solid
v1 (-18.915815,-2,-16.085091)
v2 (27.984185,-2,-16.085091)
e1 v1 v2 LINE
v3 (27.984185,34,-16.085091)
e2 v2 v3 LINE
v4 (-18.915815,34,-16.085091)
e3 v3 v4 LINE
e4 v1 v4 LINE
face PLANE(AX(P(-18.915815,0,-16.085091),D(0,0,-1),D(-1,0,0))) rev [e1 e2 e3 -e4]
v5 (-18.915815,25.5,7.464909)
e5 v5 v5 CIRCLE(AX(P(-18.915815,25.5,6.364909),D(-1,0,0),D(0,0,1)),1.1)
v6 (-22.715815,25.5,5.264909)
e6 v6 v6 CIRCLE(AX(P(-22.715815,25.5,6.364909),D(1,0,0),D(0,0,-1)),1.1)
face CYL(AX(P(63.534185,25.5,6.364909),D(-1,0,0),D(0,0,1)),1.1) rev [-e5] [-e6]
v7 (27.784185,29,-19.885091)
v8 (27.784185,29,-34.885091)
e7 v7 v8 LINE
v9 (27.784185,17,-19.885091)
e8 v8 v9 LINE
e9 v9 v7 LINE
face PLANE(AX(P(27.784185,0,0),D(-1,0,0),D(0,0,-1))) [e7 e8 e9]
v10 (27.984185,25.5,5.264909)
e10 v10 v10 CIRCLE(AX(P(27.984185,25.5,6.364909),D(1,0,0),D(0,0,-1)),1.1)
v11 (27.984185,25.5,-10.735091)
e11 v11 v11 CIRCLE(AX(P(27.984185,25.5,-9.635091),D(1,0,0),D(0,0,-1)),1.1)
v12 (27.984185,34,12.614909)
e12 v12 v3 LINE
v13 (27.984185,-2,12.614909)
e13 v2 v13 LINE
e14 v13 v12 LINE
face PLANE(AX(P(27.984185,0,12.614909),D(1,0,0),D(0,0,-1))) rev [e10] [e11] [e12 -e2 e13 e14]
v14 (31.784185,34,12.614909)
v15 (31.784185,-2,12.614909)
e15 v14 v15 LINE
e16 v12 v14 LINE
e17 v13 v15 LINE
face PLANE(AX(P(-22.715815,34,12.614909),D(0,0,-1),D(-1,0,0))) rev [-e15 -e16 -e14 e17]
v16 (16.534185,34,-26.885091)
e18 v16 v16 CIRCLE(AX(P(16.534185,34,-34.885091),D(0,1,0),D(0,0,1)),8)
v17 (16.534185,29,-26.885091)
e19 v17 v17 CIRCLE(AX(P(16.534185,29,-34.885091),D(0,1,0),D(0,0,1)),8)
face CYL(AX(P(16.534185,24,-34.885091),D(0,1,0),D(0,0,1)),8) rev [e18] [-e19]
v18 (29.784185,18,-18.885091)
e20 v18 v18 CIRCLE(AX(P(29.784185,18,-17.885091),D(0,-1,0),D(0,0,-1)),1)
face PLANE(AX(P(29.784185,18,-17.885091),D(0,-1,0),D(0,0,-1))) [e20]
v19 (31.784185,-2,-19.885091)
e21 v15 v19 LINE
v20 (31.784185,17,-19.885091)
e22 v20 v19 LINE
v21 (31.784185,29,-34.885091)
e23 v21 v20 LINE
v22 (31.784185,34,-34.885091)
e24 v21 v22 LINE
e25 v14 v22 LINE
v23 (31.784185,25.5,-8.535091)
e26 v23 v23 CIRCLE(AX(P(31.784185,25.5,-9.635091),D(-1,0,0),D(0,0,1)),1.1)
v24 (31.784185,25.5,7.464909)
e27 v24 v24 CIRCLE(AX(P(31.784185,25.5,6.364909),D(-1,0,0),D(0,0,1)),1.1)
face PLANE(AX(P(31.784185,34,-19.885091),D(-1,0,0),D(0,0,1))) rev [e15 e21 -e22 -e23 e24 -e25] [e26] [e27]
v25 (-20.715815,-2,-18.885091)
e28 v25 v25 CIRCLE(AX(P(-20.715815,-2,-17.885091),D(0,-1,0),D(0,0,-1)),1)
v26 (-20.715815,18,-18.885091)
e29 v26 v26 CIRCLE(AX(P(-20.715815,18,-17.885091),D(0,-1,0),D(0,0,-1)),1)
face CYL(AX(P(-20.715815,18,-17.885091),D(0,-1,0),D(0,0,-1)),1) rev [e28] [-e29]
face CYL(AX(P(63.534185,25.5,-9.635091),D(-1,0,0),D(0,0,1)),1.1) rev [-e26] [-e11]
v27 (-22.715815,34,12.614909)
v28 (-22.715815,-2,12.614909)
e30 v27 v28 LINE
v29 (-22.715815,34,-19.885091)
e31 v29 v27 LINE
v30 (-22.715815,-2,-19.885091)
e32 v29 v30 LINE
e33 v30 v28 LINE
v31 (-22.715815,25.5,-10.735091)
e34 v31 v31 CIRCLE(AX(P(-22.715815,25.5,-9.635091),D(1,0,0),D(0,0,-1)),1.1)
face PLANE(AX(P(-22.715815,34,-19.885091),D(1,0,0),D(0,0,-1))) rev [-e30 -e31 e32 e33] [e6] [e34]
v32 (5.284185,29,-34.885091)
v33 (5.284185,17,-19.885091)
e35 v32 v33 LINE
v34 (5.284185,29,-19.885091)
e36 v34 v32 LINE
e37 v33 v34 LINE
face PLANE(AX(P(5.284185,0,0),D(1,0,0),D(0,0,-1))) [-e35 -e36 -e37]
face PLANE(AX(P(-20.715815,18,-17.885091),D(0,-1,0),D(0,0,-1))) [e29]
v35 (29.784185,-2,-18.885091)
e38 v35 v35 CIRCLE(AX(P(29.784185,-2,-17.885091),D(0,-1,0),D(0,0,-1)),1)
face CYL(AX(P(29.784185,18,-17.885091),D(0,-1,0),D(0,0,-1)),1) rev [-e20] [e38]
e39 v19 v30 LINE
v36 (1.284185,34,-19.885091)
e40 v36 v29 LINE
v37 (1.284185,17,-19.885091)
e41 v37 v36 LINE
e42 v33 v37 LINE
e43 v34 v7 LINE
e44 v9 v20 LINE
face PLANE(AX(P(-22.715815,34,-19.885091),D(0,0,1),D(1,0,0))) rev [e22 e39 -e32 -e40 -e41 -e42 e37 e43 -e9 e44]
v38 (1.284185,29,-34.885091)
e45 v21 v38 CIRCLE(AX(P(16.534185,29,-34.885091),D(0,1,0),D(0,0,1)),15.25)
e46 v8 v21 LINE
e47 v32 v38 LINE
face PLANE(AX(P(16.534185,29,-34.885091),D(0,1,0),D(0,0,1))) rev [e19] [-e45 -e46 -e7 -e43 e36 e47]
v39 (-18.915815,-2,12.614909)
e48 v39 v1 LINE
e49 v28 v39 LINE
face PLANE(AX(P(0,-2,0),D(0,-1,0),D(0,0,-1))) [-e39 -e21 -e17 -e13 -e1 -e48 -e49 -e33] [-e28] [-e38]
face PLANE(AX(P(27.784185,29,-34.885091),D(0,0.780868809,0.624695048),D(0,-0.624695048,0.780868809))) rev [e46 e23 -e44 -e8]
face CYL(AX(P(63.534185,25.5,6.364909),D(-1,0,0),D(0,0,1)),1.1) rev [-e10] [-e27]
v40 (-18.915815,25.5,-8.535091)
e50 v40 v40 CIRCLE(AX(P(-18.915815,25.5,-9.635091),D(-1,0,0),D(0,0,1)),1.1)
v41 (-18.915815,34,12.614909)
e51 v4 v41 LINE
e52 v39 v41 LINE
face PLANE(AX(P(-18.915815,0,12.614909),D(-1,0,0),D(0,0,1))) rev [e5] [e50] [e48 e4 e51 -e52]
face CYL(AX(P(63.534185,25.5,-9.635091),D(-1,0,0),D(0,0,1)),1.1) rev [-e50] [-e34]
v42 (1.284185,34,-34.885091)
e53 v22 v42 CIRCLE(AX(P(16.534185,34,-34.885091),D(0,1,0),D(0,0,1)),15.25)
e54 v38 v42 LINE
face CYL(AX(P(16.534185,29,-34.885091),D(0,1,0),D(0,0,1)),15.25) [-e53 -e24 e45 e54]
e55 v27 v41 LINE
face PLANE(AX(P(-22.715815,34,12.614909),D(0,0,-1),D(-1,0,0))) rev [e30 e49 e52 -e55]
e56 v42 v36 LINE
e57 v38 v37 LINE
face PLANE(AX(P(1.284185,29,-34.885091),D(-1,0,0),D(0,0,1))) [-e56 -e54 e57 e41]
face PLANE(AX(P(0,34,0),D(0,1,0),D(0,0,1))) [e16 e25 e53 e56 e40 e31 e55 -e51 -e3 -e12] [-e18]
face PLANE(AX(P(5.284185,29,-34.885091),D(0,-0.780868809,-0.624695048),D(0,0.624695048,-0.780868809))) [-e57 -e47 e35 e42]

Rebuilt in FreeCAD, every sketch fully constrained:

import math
import FreeCAD as App
import Part
import Sketcher
from FreeCAD import Vector


def add_polygon(sketch, points):
    """Adds a closed chain of lines whose ends are joined by coincident constraints."""
    first, n = sketch.GeometryCount, len(points)
    for a, b in zip(points, points[1:] + points[:1]):
        sketch.addGeometry(Part.LineSegment(App.Vector(*a, 0), App.Vector(*b, 0)), False)
    for i in range(n):
        sketch.addConstraint(Sketcher.Constraint("Coincident", first + i, 2, first + (i + 1) % n, 1))

doc = App.newDocument("Part")
body = doc.addObject("PartDesign::Body", "Body")

sketch1 = doc.addObject("Sketcher::SketchObject", "Sketch")
body.addObject(sketch1)
sketch1.AttachmentSupport = (doc.XZ_Plane, [""])
sketch1.MapMode = "FlatFace"
add_polygon(sketch1, [(-23, -20), (-23, 13), (32, 13), (32, -20)])
sketch1.addConstraint(Sketcher.Constraint("Vertical", 0))
sketch1.addConstraint(Sketcher.Constraint("Horizontal", 1))
sketch1.addConstraint(Sketcher.Constraint("Vertical", 2))
sketch1.addConstraint(Sketcher.Constraint("Horizontal", 3))
sketch1.addConstraint(Sketcher.Constraint("DistanceX", 1, 1, 1, 2, 54.5))
sketch1.addConstraint(Sketcher.Constraint("DistanceY", 0, 1, 0, 2, 32.5))
sketch1.addConstraint(Sketcher.Constraint("DistanceY", -1, 1, 0, 2, 12.614909))
sketch1.addConstraint(Sketcher.Constraint("DistanceX", 0, 2, -1, 1, 22.715815))
pad1 = doc.addObject("PartDesign::Pad", "Pad")
body.addObject(pad1)
pad1.Profile = sketch1
pad1.Length = 34
pad1.Reversed = True

sketch2 = doc.addObject("Sketcher::SketchObject", "Sketch001")
body.addObject(sketch2)
sketch2.AttachmentSupport = (doc.XZ_Plane, [""])
sketch2.MapMode = "FlatFace"
sketch2.AttachmentOffset = App.Placement(Vector(0, 0, -34), App.Rotation())
sketch2.addGeometry(Part.LineSegment(Vector(1, -35, 0), Vector(1, -20, 0)), False)
sketch2.addGeometry(Part.LineSegment(Vector(1, -20, 0), Vector(32, -20, 0)), False)
sketch2.addGeometry(Part.LineSegment(Vector(32, -20, 0), Vector(32, -35, 0)), False)
sketch2.addGeometry(Part.ArcOfCircle(Part.Circle(Vector(17, -35, 0), Vector(0, 0, 1), 15), math.radians(180), math.radians(360)), False)
sketch2.addConstraint(Sketcher.Constraint("Coincident", 0, 2, 1, 1))
sketch2.addConstraint(Sketcher.Constraint("Coincident", 1, 2, 2, 1))
sketch2.addConstraint(Sketcher.Constraint("Tangent", 2, 2, 3, 2))
sketch2.addConstraint(Sketcher.Constraint("Tangent", 3, 1, 0, 1))
sketch2.addConstraint(Sketcher.Constraint("Vertical", 0))
sketch2.addConstraint(Sketcher.Constraint("Horizontal", 1))
sketch2.addConstraint(Sketcher.Constraint("Vertical", 2))
sketch2.addConstraint(Sketcher.Constraint("DistanceY", 0, 1, 0, 2, 15.0))
sketch2.addConstraint(Sketcher.Constraint("Radius", 3, 15.25))
sketch2.addConstraint(Sketcher.Constraint("DistanceY", 3, 3, -1, 1, 34.885091))
sketch2.addConstraint(Sketcher.Constraint("DistanceX", -1, 1, 3, 3, 16.534185))
pad2 = doc.addObject("PartDesign::Pad", "Pad001")
body.addObject(pad2)
pad2.Profile = sketch2
pad2.Length = 5

sketch3 = doc.addObject("Sketcher::SketchObject", "Sketch002")
body.addObject(sketch3)
sketch3.AttachmentSupport = (doc.YZ_Plane, [""])
sketch3.MapMode = "FlatFace"
sketch3.AttachmentOffset = App.Placement(Vector(0, 0, 1.284185), App.Rotation())
add_polygon(sketch3, [(29, -35), (17, -20), (29, -20)])
sketch3.addConstraint(Sketcher.Constraint("Horizontal", 1))
sketch3.addConstraint(Sketcher.Constraint("Vertical", 2))
sketch3.addConstraint(Sketcher.Constraint("DistanceX", 1, 1, 1, 2, 12.0))
sketch3.addConstraint(Sketcher.Constraint("DistanceY", 2, 2, 2, 1, 15.0))
sketch3.addConstraint(Sketcher.Constraint("DistanceX", -1, 1, 0, 2, 17.0))
sketch3.addConstraint(Sketcher.Constraint("DistanceY", 0, 2, -1, 1, 19.885091))
pad3 = doc.addObject("PartDesign::Pad", "Pad002")
body.addObject(pad3)
pad3.Profile = sketch3
pad3.Length = 4
doc.recompute()

datumplane = doc.addObject("PartDesign::Plane", "DatumPlane")
body.addObject(datumplane)
datumplane.AttachmentSupport = (doc.YZ_Plane, [""])
datumplane.MapMode = "FlatFace"
datumplane.AttachmentOffset = App.Placement(Vector(0, 0, 16.534185), App.Rotation())
mirrored = doc.addObject("PartDesign::Mirrored", "Mirrored")
body.addObject(mirrored)
mirrored.Originals = [pad2, pad3]
mirrored.MirrorPlane = (datumplane, [""])
body.Tip = mirrored

sketch4 = doc.addObject("Sketcher::SketchObject", "Sketch003")
body.addObject(sketch4)
sketch4.AttachmentSupport = (doc.XZ_Plane, [""])
sketch4.MapMode = "FlatFace"
sketch4.AttachmentOffset = App.Placement(Vector(0, 0, -34), App.Rotation())
add_polygon(sketch4, [(-19, -16), (-19, 13), (28, 13), (28, -16)])
sketch4.addConstraint(Sketcher.Constraint("Vertical", 0))
sketch4.addConstraint(Sketcher.Constraint("Horizontal", 1))
sketch4.addConstraint(Sketcher.Constraint("Vertical", 2))
sketch4.addConstraint(Sketcher.Constraint("Horizontal", 3))
sketch4.addConstraint(Sketcher.Constraint("DistanceX", 1, 1, 1, 2, 46.9))
sketch4.addConstraint(Sketcher.Constraint("DistanceY", 0, 1, 0, 2, 28.7))
sketch4.addConstraint(Sketcher.Constraint("DistanceY", -1, 1, 0, 2, 12.614909))
sketch4.addConstraint(Sketcher.Constraint("DistanceX", 0, 2, -1, 1, 18.915815))
pocket1 = doc.addObject("PartDesign::Pocket", "Pocket")
body.addObject(pocket1)
pocket1.Profile = sketch4
pocket1.Type = "ThroughAll"
pocket1.Reversed = True

sketch5 = doc.addObject("Sketcher::SketchObject", "Sketch004")
body.addObject(sketch5)
sketch5.AttachmentSupport = (doc.YZ_Plane, [""])
sketch5.MapMode = "FlatFace"
sketch5.AttachmentOffset = App.Placement(Vector(0, 0, 16.534185), App.Rotation())
sketch5.addGeometry(Part.Circle(Vector(25.5, -9.6, 0), Vector(0, 0, 1), 1.1), False)
sketch5.addGeometry(Part.Circle(Vector(25.5, 6.4, 0), Vector(0, 0, 1), 1.1), False)
sketch5.addConstraint(Sketcher.Constraint("Equal", 0, 1))
sketch5.addConstraint(Sketcher.Constraint("Vertical", 0, 3, 1, 3))
sketch5.addConstraint(Sketcher.Constraint("Diameter", 0, 2.2))
sketch5.addConstraint(Sketcher.Constraint("DistanceY", 0, 3, 1, 3, 16.0))
sketch5.addConstraint(Sketcher.Constraint("DistanceX", -1, 1, 0, 3, 25.5))
sketch5.addConstraint(Sketcher.Constraint("DistanceY", 0, 3, -1, 1, 9.635091))
pocket2 = doc.addObject("PartDesign::Pocket", "Pocket001")
body.addObject(pocket2)
pocket2.Profile = sketch5
pocket2.Length = 94
pocket2.Midplane = True

sketch6 = doc.addObject("Sketcher::SketchObject", "Sketch005")
body.addObject(sketch6)
sketch6.AttachmentSupport = (doc.XZ_Plane, [""])
sketch6.MapMode = "FlatFace"
add_polygon(sketch6, [(-22.7, -19.9), (-22.7, 12.6), (-18.9, 12.6), (-18.9, -16.1), (28, -16.1), (28, 12.6), (31.8, 12.6), (31.8, -19.9)])
sketch6.addConstraint(Sketcher.Constraint("Vertical", 0))
sketch6.addConstraint(Sketcher.Constraint("Horizontal", 1))
sketch6.addConstraint(Sketcher.Constraint("Vertical", 2))
sketch6.addConstraint(Sketcher.Constraint("Horizontal", 3))
sketch6.addConstraint(Sketcher.Constraint("Vertical", 4))
sketch6.addConstraint(Sketcher.Constraint("Horizontal", 5))
sketch6.addConstraint(Sketcher.Constraint("Vertical", 6))
sketch6.addConstraint(Sketcher.Constraint("Horizontal", 7))
sketch6.addConstraint(Sketcher.Constraint("Horizontal", 1, 2, 4, 2))
sketch6.addConstraint(Sketcher.Constraint("Equal", 1, 5))
sketch6.addConstraint(Sketcher.Constraint("DistanceX", 1, 1, 1, 2, 3.8))
sketch6.addConstraint(Sketcher.Constraint("DistanceX", 3, 1, 3, 2, 46.9))
sketch6.addConstraint(Sketcher.Constraint("DistanceY", 0, 1, 0, 2, 32.5))
sketch6.addConstraint(Sketcher.Constraint("DistanceY", 2, 2, 2, 1, 28.7))
sketch6.addConstraint(Sketcher.Constraint("DistanceY", -1, 1, 0, 2, 12.614909))
sketch6.addConstraint(Sketcher.Constraint("DistanceX", 0, 2, -1, 1, 22.715815))
pad4 = doc.addObject("PartDesign::Pad", "Pad003")
body.addObject(pad4)
pad4.Profile = sketch6
pad4.Length = 2

sketch7 = doc.addObject("Sketcher::SketchObject", "Sketch006")
body.addObject(sketch7)
sketch7.AttachmentSupport = (doc.XZ_Plane, [""])
sketch7.MapMode = "FlatFace"
sketch7.AttachmentOffset = App.Placement(Vector(0, 0, -34), App.Rotation())
sketch7.addGeometry(Part.Circle(Vector(17, -35, 0), Vector(0, 0, 1), 8), False)
sketch7.addConstraint(Sketcher.Constraint("Diameter", 0, 16.0))
sketch7.addConstraint(Sketcher.Constraint("DistanceY", 0, 3, -1, 1, 34.885091))
sketch7.addConstraint(Sketcher.Constraint("DistanceX", -1, 1, 0, 3, 16.534185))
pocket3 = doc.addObject("PartDesign::Pocket", "Pocket002")
body.addObject(pocket3)
pocket3.Profile = sketch7
pocket3.Length = 10
pocket3.Reversed = True

sketch8 = doc.addObject("Sketcher::SketchObject", "Sketch007")
body.addObject(sketch8)
sketch8.AttachmentSupport = (doc.XZ_Plane, [""])
sketch8.MapMode = "FlatFace"
sketch8.AttachmentOffset = App.Placement(Vector(0, 0, 2), App.Rotation())
sketch8.addGeometry(Part.Circle(Vector(29.8, -17.9, 0), Vector(0, 0, 1), 1), False)
sketch8.addGeometry(Part.Circle(Vector(-20.7, -17.9, 0), Vector(0, 0, 1), 1), False)
sketch8.addConstraint(Sketcher.Constraint("Equal", 0, 1))
sketch8.addConstraint(Sketcher.Constraint("Horizontal", 0, 3, 1, 3))
sketch8.addConstraint(Sketcher.Constraint("Diameter", 0, 2.0))
sketch8.addConstraint(Sketcher.Constraint("DistanceX", 1, 3, 0, 3, 50.5))
sketch8.addConstraint(Sketcher.Constraint("DistanceY", 0, 3, -1, 1, 17.885091))
sketch8.addConstraint(Sketcher.Constraint("DistanceX", -1, 1, 0, 3, 29.784185))
pocket4 = doc.addObject("PartDesign::Pocket", "Pocket003")
body.addObject(pocket4)
pocket4.Profile = sketch8
pocket4.Length = 20

doc.recompute()
